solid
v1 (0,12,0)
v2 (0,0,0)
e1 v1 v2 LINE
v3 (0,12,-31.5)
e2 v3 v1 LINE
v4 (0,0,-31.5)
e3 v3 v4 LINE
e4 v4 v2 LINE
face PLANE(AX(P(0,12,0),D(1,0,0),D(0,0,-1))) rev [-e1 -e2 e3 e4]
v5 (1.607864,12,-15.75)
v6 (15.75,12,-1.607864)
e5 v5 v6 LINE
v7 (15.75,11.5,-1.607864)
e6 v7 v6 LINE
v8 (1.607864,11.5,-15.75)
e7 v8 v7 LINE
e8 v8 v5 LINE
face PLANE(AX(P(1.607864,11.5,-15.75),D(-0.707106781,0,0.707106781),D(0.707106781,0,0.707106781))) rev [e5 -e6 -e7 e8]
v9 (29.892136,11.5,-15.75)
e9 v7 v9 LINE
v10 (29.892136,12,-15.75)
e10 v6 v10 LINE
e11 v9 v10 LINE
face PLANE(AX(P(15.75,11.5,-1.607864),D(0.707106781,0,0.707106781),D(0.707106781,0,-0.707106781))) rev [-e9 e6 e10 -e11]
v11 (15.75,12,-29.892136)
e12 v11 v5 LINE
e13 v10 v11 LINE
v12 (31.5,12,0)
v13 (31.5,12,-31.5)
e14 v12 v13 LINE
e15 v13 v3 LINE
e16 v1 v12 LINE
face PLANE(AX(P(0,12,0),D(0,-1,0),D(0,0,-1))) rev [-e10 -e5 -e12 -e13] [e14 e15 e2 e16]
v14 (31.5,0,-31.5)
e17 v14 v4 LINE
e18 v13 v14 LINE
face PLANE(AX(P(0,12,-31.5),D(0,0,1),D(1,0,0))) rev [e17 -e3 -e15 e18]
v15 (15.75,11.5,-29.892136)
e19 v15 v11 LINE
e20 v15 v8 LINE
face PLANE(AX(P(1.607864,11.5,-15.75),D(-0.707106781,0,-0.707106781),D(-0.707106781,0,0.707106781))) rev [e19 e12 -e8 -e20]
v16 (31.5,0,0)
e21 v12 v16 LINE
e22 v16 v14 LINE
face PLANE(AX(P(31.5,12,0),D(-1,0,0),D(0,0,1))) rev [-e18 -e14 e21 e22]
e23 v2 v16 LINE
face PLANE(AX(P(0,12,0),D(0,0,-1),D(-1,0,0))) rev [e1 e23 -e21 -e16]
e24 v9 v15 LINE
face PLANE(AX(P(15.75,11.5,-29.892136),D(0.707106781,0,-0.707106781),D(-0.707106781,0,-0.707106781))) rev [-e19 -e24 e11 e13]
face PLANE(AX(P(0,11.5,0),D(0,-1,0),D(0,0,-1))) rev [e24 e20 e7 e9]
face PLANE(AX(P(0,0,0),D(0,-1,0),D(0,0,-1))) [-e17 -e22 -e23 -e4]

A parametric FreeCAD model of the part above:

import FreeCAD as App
import Part
import Sketcher
Q = App.Units.Quantity


def add_polygon(sketch, points):
    """Adds a closed chain of lines whose ends are joined by coincident constraints."""
    first, n = sketch.GeometryCount, len(points)
    for a, b in zip(points, points[1:] + points[:1]):
        sketch.addGeometry(Part.LineSegment(App.Vector(*a, 0), App.Vector(*b, 0)), False)
    for i in range(n):
        sketch.addConstraint(Sketcher.Constraint("Coincident", first + i, 2, first + (i + 1) % n, 1))

doc = App.newDocument("Part")
params = doc.addObject("Spreadsheet::Sheet", "Params")
for row, (alias, value) in enumerate([
    ("sketch1_width", "31.5 mm"),
    ("pad1_length", "12 mm"),
    ("sketch2_length", "20 mm"),
    ("pocket1_length", "0.5 mm"),
], start=1):
    params.set(f"A{row}", alias)
    params.set(f"B{row}", "=" + value)
    params.setAlias(f"B{row}", alias)

body = doc.addObject("PartDesign::Body", "Body")

sketch1 = body.newObject("Sketcher::SketchObject", "Sketch")
sketch1.AttachmentSupport = (doc.getObject("XZ_Plane"), [""])
sketch1.MapMode = "FlatFace"
add_polygon(sketch1, [(0, -32), (0, 0), (32, 0), (32, -32)])
sketch1.addConstraint(Sketcher.Constraint("Vertical", 0))
sketch1.addConstraint(Sketcher.Constraint("Horizontal", 1))
sketch1.addConstraint(Sketcher.Constraint("Vertical", 2))
sketch1.addConstraint(Sketcher.Constraint("Horizontal", 3))
sketch1.addConstraint(Sketcher.Constraint("Coincident", 0, 2, -1, 1))
sketch1.addConstraint(Sketcher.Constraint("Equal", 3, 0))
sketch1.addConstraint(Sketcher.Constraint("DistanceX", 1, 1, 1, 2, Q("31.5 mm")))
sketch1.setExpression("Constraints[10]", "Params.sketch1_width")
pad1 = body.newObject("PartDesign::Pad", "Pad")
pad1.Profile = sketch1
pad1.setExpression("Length", "Params.pad1_length")
pad1.Reversed = True

sketch2 = body.newObject("Sketcher::SketchObject", "Sketch001")
sketch2.AttachmentSupport = (doc.getObject("XZ_Plane"), [""])
sketch2.MapMode = "FlatFace"
sketch2.AttachmentOffset = App.Placement(App.Vector(0, 0, -12), App.Rotation())
add_polygon(sketch2, [(2, -16), (16, -2), (30, -16), (16, -30)])
sketch2.addConstraint(Sketcher.Constraint("Perpendicular", 0, 1))
sketch2.addConstraint(Sketcher.Constraint("Perpendicular", 1, 2))
sketch2.addConstraint(Sketcher.Constraint("Perpendicular", 2, 3))
sketch2.addConstraint(Sketcher.Constraint("Horizontal", 1, 2, 3, 2))
sketch2.addConstraint(Sketcher.Constraint("Vertical", 0, 2, 2, 2))
sketch2.addConstraint(Sketcher.Constraint("Distance", 0, Q("20 mm")))
sketch2.addConstraint(Sketcher.Constraint("DistanceX", -1, 1, 0, 2, Q("15.75 mm")))
sketch2.addConstraint(Sketcher.Constraint("DistanceY", 1, 2, -1, 1, Q("15.75 mm")))
sketch2.setExpression("Constraints[9]", "Params.sketch2_length")
pocket1 = body.newObject("PartDesign::Pocket", "Pocket")
pocket1.Profile = sketch2
pocket1.setExpression("Length", "Params.pocket1_length")
pocket1.Reversed = True

doc.recompute()
